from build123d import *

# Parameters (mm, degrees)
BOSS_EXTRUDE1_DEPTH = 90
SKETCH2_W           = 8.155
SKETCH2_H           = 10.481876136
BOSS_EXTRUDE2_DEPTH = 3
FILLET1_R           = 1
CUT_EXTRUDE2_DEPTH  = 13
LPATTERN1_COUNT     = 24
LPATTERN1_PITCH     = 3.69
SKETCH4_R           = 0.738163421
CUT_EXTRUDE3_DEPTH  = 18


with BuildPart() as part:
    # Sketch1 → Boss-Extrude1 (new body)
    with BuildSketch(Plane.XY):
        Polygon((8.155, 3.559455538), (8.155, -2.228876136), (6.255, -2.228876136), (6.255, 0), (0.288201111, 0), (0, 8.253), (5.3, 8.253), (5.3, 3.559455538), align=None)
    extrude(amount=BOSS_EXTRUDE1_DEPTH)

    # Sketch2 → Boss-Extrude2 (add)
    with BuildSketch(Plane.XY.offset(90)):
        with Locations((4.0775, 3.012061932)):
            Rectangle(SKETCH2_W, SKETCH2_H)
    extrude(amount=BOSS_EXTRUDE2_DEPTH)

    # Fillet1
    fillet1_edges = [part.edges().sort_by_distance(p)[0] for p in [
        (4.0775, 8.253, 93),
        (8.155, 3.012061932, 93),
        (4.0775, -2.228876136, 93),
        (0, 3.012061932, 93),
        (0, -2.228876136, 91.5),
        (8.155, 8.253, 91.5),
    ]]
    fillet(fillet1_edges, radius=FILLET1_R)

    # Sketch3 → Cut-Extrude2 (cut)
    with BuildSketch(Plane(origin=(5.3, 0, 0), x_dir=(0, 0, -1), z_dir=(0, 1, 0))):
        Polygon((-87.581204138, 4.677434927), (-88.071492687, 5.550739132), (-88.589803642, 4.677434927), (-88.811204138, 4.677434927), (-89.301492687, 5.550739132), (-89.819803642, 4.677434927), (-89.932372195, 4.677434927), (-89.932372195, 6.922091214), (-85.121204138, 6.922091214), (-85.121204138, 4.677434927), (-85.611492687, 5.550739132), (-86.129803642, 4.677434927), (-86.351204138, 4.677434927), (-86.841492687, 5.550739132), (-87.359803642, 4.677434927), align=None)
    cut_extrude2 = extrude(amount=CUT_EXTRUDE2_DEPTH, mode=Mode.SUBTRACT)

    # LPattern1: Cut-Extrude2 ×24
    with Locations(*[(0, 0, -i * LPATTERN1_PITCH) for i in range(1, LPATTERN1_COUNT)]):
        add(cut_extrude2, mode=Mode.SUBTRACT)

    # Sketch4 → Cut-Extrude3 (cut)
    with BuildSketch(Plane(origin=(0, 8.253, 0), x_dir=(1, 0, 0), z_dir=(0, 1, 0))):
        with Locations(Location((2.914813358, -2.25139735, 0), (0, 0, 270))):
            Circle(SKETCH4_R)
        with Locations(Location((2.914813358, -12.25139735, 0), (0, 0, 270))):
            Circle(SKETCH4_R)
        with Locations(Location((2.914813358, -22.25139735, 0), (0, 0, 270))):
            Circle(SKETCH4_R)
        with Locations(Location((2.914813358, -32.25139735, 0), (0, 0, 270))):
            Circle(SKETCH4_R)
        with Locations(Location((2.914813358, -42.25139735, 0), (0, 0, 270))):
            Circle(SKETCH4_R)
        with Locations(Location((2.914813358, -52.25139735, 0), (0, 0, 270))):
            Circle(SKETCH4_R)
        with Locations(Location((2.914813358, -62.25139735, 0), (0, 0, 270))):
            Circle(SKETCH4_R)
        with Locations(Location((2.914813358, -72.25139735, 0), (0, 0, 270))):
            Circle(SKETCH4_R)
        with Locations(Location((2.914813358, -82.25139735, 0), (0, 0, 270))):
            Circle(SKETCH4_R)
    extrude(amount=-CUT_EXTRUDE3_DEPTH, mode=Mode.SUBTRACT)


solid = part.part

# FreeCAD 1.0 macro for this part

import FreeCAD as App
import Part
import Sketcher

V = App.Vector
Q = App.Units.Quantity


def edges_at(feature, points):
    """Names of the edges that pass closest to the given points."""
    edges = feature.Shape.Edges
    near = lambda p: min(range(len(edges)), key=lambda i: edges[i].distToShape(Part.Vertex(*p))[0])
    return sorted({f"Edge{near(p) + 1}" for p in points})

doc = App.newDocument("Part")
params = doc.addObject("Spreadsheet::Sheet", "Params")
for row, (alias, value) in enumerate([
    ("sketch1_width", "5.3 mm"),
    ("sketch1_width2", "1.9 mm"),
    ("pad1_length", "90 mm"),
    ("pad2_length", "3 mm"),
    ("fillet_radius", "1 mm"),
    ("pocket1_length", "13 mm"),
    ("linearpattern_pitch", "3.69 mm"),
    ("pocket2_length", "18 mm"),
], start=1):
    params.set(f"A{row}", alias)
    params.set(f"B{row}", "=" + value)
    params.setAlias(f"B{row}", alias)

body = doc.addObject("PartDesign::Body", "Body")

# Sketch on XY plane
sketch1 = doc.addObject("Sketcher::SketchObject", "Sketch")
body.addObject(sketch1)
sketch1.AttachmentSupport = (doc.XY_Plane, [""])
sketch1.MapMode = "FlatFace"
sketch1.addGeometry([
    Part.LineSegment(V(8.2, -2.2, 0), V(8.2, 3.6, 0)),  # 0
    Part.LineSegment(V(8.2, 3.6, 0), V(5.3, 3.6, 0)),  # 1
    Part.LineSegment(V(5.3, 3.6, 0), V(5.3, 8.3, 0)),  # 2
    Part.LineSegment(V(5.3, 8.3, 0), V(0, 8.3, 0)),  # 3
    Part.LineSegment(V(0, 8.3, 0), V(0.3, 0, 0)),  # 4
    Part.LineSegment(V(0.3, 0, 0), V(6.3, 0, 0)),  # 5
    Part.LineSegment(V(6.3, 0, 0), V(6.3, -2.2, 0)),  # 6
    Part.LineSegment(V(6.3, -2.2, 0), V(8.2, -2.2, 0)),  # 7
], False)
sketch1.addConstraint([
    Sketcher.Constraint("Coincident", 0, 2, 1, 1),
    Sketcher.Constraint("Coincident", 1, 2, 2, 1),
    Sketcher.Constraint("Coincident", 2, 2, 3, 1),
    Sketcher.Constraint("Coincident", 3, 2, 4, 1),
    Sketcher.Constraint("Coincident", 4, 2, 5, 1),
    Sketcher.Constraint("Coincident", 5, 2, 6, 1),
    Sketcher.Constraint("Coincident", 6, 2, 7, 1),
    Sketcher.Constraint("Coincident", 7, 2, 0, 1),
    Sketcher.Constraint("Vertical", 0),
    Sketcher.Constraint("Horizontal", 1),
    Sketcher.Constraint("Vertical", 2),
    Sketcher.Constraint("Horizontal", 3),
    Sketcher.Constraint("Horizontal", 5),
    Sketcher.Constraint("Vertical", 6),
    Sketcher.Constraint("Horizontal", 7),
    Sketcher.Constraint("PointOnObject", 3, 2, -2),
    Sketcher.Constraint("PointOnObject", 4, 2, -1),
    Sketcher.Constraint("Angle", 4, Q("-88 deg")),
    Sketcher.Constraint("DistanceX", 3, 2, 3, 1, Q("5.3 mm")),
    Sketcher.Constraint("DistanceX", 7, 1, 7, 2, Q("1.9 mm")),
    Sketcher.Constraint("DistanceX", 1, 2, 1, 1, Q("2.855 mm")),
    Sketcher.Constraint("DistanceX", 5, 1, 5, 2, Q("5.966799 mm")),
    Sketcher.Constraint("DistanceY", 0, 1, 0, 2, Q("5.788332 mm")),
    Sketcher.Constraint("DistanceY", 2, 1, 2, 2, Q("4.693544 mm")),
])
sketch1.setExpression("Constraints[18]", "Params.sketch1_width")
sketch1.setExpression("Constraints[19]", "Params.sketch1_width2")
pad1 = doc.addObject("PartDesign::Pad", "Pad")
body.addObject(pad1)
pad1.Profile = sketch1
pad1.setExpression("Length", "Params.pad1_length")

# Sketch on XY plane
sketch2 = doc.addObject("Sketcher::SketchObject", "Sketch001")
body.addObject(sketch2)
sketch2.AttachmentSupport = (doc.XY_Plane, [""])
sketch2.MapMode = "FlatFace"
sketch2.AttachmentOffset = App.Placement(V(0, 0, 90), App.Rotation())
sketch2.addGeometry([
    Part.LineSegment(V(0, 8, 0), V(0, -2, 0)),
    Part.LineSegment(V(0, -2, 0), V(8, -2, 0)),
    Part.LineSegment(V(8, -2, 0), V(8, 8, 0)),
    Part.LineSegment(V(8, 8, 0), V(0, 8, 0)),
], False)
sketch2.addConstraint([
    Sketcher.Constraint("Coincident", 0, 2, 1, 1),
    Sketcher.Constraint("Coincident", 1, 2, 2, 1),
    Sketcher.Constraint("Coincident", 2, 2, 3, 1),
    Sketcher.Constraint("Coincident", 3, 2, 0, 1),
    Sketcher.Constraint("Vertical", 0),
    Sketcher.Constraint("Horizontal", 1),
    Sketcher.Constraint("Vertical", 2),
    Sketcher.Constraint("Horizontal", 3),
    Sketcher.Constraint("PointOnObject", 0, 2, -2),
    Sketcher.Constraint("DistanceX", 1, 1, 1, 2, Q("8.155 mm")),
    Sketcher.Constraint("DistanceY", -1, 1, 2, 2, Q("8.253 mm")),
    Sketcher.Constraint("DistanceY", 0, 2, 0, 1, Q("10.481876 mm")),
])
pad2 = doc.addObject("PartDesign::Pad", "Pad001")
body.addObject(pad2)
pad2.Profile = sketch2
pad2.setExpression("Length", "Params.pad2_length")
doc.recompute()

fillet = doc.addObject("PartDesign::Fillet", "Fillet")
body.addObject(fillet)
fillet.Base = (pad2, edges_at(pad2, [
    (4.077, 8.253, 93),
    (8.155, 3.012, 93),
    (4.077, -2.229, 93),
    (0, 3.012, 93),
    (0, -2.229, 91.5),
    (8.155, 8.253, 91.5),
]))
fillet.setExpression("Radius", "Params.fillet_radius")

# Sketch on XZ plane
sketch3 = doc.addObject("Sketcher::SketchObject", "Sketch002")
body.addObject(sketch3)
sketch3.AttachmentSupport = (doc.XZ_Plane, [""])
sketch3.MapMode = "FlatFace"
sketch3.addGeometry([
    Part.LineSegment(V(-0.25, 88.07, 0), V(0.62, 87.58, 0)),  # 0
    Part.LineSegment(V(0.62, 87.58, 0), V(0.62, 87.36, 0)),  # 1
    Part.LineSegment(V(0.62, 87.36, 0), V(-0.25, 86.84, 0)),  # 2
    Part.LineSegment(V(-0.25, 86.84, 0), V(0.62, 86.35, 0)),  # 3
    Part.LineSegment(V(0.62, 86.35, 0), V(0.62, 86.13, 0)),  # 4
    Part.LineSegment(V(0.62, 86.13, 0), V(-0.25, 85.61, 0)),  # 5
    Part.LineSegment(V(-0.25, 85.61, 0), V(0.62, 85.12, 0)),  # 6
    Part.LineSegment(V(0.62, 85.12, 0), V(-1.62, 85.12, 0)),  # 7
    Part.LineSegment(V(-1.62, 85.12, 0), V(-1.62, 89.93, 0)),  # 8
    Part.LineSegment(V(-1.62, 89.93, 0), V(0.62, 89.93, 0)),  # 9
    Part.LineSegment(V(0.62, 89.93, 0), V(0.62, 89.82, 0)),  # 10
    Part.LineSegment(V(0.62, 89.82, 0), V(-0.25, 89.3, 0)),  # 11
    Part.LineSegment(V(-0.25, 89.3, 0), V(0.62, 88.81, 0)),  # 12
    Part.LineSegment(V(0.62, 88.81, 0), V(0.62, 88.59, 0)),  # 13
    Part.LineSegment(V(0.62, 88.59, 0), V(-0.25, 88.07, 0)),  # 14
], False)
sketch3.addConstraint([
    Sketcher.Constraint("Coincident", 0, 2, 1, 1),
    Sketcher.Constraint("Coincident", 1, 2, 2, 1),
    Sketcher.Constraint("Coincident", 2, 2, 3, 1),
    Sketcher.Constraint("Coincident", 3, 2, 4, 1),
    Sketcher.Constraint("Coincident", 4, 2, 5, 1),
    Sketcher.Constraint("Coincident", 5, 2, 6, 1),
    Sketcher.Constraint("Coincident", 6, 2, 7, 1),
    Sketcher.Constraint("Coincident", 7, 2, 8, 1),
    Sketcher.Constraint("Coincident", 8, 2, 9, 1),
    Sketcher.Constraint("Coincident", 9, 2, 10, 1),
    Sketcher.Constraint("Coincident", 10, 2, 11, 1),
    Sketcher.Constraint("Coincident", 11, 2, 12, 1),
    Sketcher.Constraint("Coincident", 12, 2, 13, 1),
    Sketcher.Constraint("Coincident", 13, 2, 14, 1),
    Sketcher.Constraint("Coincident", 14, 2, 0, 1),
    Sketcher.Constraint("Vertical", 1),
    Sketcher.Constraint("Vertical", 4),
    Sketcher.Constraint("Horizontal", 7),
    Sketcher.Constraint("Vertical", 8),
    Sketcher.Constraint("Horizontal", 9),
    Sketcher.Constraint("Vertical", 10),
    Sketcher.Constraint("Vertical", 13),
    Sketcher.Constraint("Parallel", 0, 3),
    Sketcher.Constraint("Parallel", 2, 5),
    Sketcher.Constraint("Parallel", 3, 6),
    Sketcher.Constraint("Parallel", 5, 11),
    Sketcher.Constraint("Parallel", 6, 12),
    Sketcher.Constraint("Parallel", 11, 14),
    Sketcher.Constraint("Vertical", 1, 2, 3, 2),
    Sketcher.Constraint("Vertical", 2, 2, 5, 2),
    Sketcher.Constraint("Vertical", 4, 2, 6, 2),
    Sketcher.Constraint("Vertical", 6, 2, 9, 2),
    Sketcher.Constraint("Vertical", 5, 2, 11, 2),
    Sketcher.Constraint("Vertical", 10, 2, 12, 2),
    Sketcher.Constraint("Vertical", 11, 2, 14, 2),
    Sketcher.Constraint("Equal", 1, 4),
    Sketcher.Constraint("Equal", 4, 13),
    Sketcher.Constraint("DistanceY", 3, 2, 0, 2, Q("1.23 mm")),
    Sketcher.Constraint("DistanceY", 1, 2, 1, 1, Q("0.2214 mm")),
    Sketcher.Constraint("DistanceY", 8, 1, 8, 2, Q("4.811168 mm")),
    Sketcher.Constraint("Distance", 0, Q("1.00152 mm")),
    Sketcher.Constraint("DistanceX", 7, 2, 7, 1, Q("2.244656 mm")),
    Sketcher.Constraint("DistanceX", 2, 2, -1, 1, Q("0.250739 mm")),
    Sketcher.Constraint("DistanceX", 7, 2, -1, 1, Q("1.622091 mm")),
    Sketcher.Constraint("DistanceY", -1, 1, 0, 2, Q("87.581204 mm")),
])
pocket1 = doc.addObject("PartDesign::Pocket", "Pocket")
body.addObject(pocket1)
pocket1.Profile = sketch3
pocket1.setExpression("Length", "Params.pocket1_length")
doc.recompute()

linearpattern = doc.addObject("PartDesign::LinearPattern", "LinearPattern")
body.addObject(linearpattern)
linearpattern.Originals = [pocket1]
linearpattern.Direction = (doc.Z_Axis, [""])
linearpattern.Mode = "offset"
linearpattern.setExpression("Offset", "Params.linearpattern_pitch")
linearpattern.Occurrences = 24
linearpattern.Reversed = True
body.Tip = linearpattern

# Sketch on XZ plane
sketch4 = doc.addObject("Sketcher::SketchObject", "Sketch003")
body.addObject(sketch4)
sketch4.AttachmentSupport = (doc.XZ_Plane, [""])
sketch4.MapMode = "FlatFace"
sketch4.AttachmentOffset = App.Placement(V(0, 0, -8.253), App.Rotation())
sketch4.addGeometry([
    Part.Circle(V(2.9, 2.3, 0), V(0, 0, 1), 0.7),  # 0
    Part.Circle(V(2.9, 12.3, 0), V(0, 0, 1), 0.7),  # 1
    Part.Circle(V(2.9, 22.3, 0), V(0, 0, 1), 0.7),  # 2
    Part.Circle(V(2.9, 32.3, 0), V(0, 0, 1), 0.7),  # 3
    Part.Circle(V(2.9, 42.3, 0), V(0, 0, 1), 0.7),  # 4
    Part.Circle(V(2.9, 52.3, 0), V(0, 0, 1), 0.7),  # 5
    Part.Circle(V(2.9, 62.3, 0), V(0, 0, 1), 0.7),  # 6
    Part.Circle(V(2.9, 72.3, 0), V(0, 0, 1), 0.7),  # 7
    Part.Circle(V(2.9, 82.3, 0), V(0, 0, 1), 0.7),  # 8
], False)
sketch4.addConstraint([
    Sketcher.Constraint("Equal", 0, 1),
    Sketcher.Constraint("Equal", 1, 2),
    Sketcher.Constraint("Equal", 2, 3),
    Sketcher.Constraint("Equal", 3, 4),
    Sketcher.Constraint("Equal", 4, 5),
    Sketcher.Constraint("Equal", 5, 6),
    Sketcher.Constraint("Equal", 6, 7),
    Sketcher.Constraint("Equal", 7, 8),
    Sketcher.Constraint("Vertical", 0, 3, 1, 3),
    Sketcher.Constraint("Vertical", 1, 3, 2, 3),
    Sketcher.Constraint("Vertical", 2, 3, 3, 3),
    Sketcher.Constraint("Vertical", 3, 3, 4, 3),
    Sketcher.Constraint("Vertical", 4, 3, 5, 3),
    Sketcher.Constraint("Vertical", 5, 3, 6, 3),
    Sketcher.Constraint("Vertical", 6, 3, 7, 3),
    Sketcher.Constraint("Vertical", 7, 3, 8, 3),
    Sketcher.Constraint("DistanceY", 0, 3, 1, 3, Q("10 mm")),
    Sketcher.Constraint("DistanceY", 1, 3, 2, 3, Q("10 mm")),
    Sketcher.Constraint("DistanceY", 2, 3, 3, 3, Q("10 mm")),
    Sketcher.Constraint("DistanceY", 3, 3, 4, 3, Q("10 mm")),
    Sketcher.Constraint("DistanceY", 4, 3, 5, 3, Q("10 mm")),
    Sketcher.Constraint("DistanceY", 5, 3, 6, 3, Q("10 mm")),
    Sketcher.Constraint("DistanceY", 6, 3, 7, 3, Q("10 mm")),
    Sketcher.Constraint("DistanceY", 7, 3, 8, 3, Q("10 mm")),
    Sketcher.Constraint("Diameter", 0, Q("1.476327 mm")),
    Sketcher.Constraint("DistanceX", -1, 1, 0, 3, Q("2.914813 mm")),
    Sketcher.Constraint("DistanceY", -1, 1, 0, 3, Q("2.251397 mm")),
])
pocket2 = doc.addObject("PartDesign::Pocket", "Pocket001")
body.addObject(pocket2)
pocket2.Profile = sketch4
pocket2.setExpression("Length", "Params.pocket2_length")
pocket2.Reversed = True

doc.recompute()
